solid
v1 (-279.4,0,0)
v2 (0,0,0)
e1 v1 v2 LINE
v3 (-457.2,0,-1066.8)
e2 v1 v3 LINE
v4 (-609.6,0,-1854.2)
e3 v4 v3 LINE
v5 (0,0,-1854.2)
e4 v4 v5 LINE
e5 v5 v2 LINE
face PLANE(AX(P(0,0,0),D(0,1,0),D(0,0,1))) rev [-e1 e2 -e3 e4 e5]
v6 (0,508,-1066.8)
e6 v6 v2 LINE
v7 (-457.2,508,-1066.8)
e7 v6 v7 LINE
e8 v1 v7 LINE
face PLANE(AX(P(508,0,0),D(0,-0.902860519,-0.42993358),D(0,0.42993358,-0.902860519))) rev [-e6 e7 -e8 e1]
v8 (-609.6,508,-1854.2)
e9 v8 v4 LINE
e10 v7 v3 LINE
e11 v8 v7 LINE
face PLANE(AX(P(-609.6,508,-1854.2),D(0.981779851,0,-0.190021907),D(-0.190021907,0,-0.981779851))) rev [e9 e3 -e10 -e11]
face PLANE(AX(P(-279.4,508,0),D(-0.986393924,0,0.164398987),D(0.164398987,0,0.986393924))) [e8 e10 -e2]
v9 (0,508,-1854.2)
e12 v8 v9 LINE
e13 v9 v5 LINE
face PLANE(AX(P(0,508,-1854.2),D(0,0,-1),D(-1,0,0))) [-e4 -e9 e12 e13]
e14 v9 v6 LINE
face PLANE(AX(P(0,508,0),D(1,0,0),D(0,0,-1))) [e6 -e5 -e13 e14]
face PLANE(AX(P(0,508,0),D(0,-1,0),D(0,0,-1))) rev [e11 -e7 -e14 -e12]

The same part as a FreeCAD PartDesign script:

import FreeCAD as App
import Part
import Sketcher
Q = App.Units.Quantity

doc = App.newDocument("Part")
body = doc.addObject("PartDesign::Body", "Body")

sketch1 = body.newObject("Sketcher::SketchObject", "Sketch")
sketch1.AttachmentSupport = (doc.getObject("XZ_Plane"), [""])
sketch1.MapMode = "FlatFace"
sketch1.addGeometry(Part.LineSegment(App.Vector(0, -1067, 0), App.Vector(0, 0, 0)), False)
sketch1.addGeometry(Part.LineSegment(App.Vector(0, 0, 0), App.Vector(279, 0, 0)), False)
sketch1.addGeometry(Part.LineSegment(App.Vector(279, 0, 0), App.Vector(457, -1067, 0)), False)
sketch1.addGeometry(Part.LineSegment(App.Vector(457, -1067, 0), App.Vector(0, -1067, 0)), False)
sketch1.addConstraint(Sketcher.Constraint("Coincident", 0, 2, 1, 1))
sketch1.addConstraint(Sketcher.Constraint("Coincident", 1, 2, 2, 1))
sketch1.addConstraint(Sketcher.Constraint("Coincident", 2, 2, 3, 1))
sketch1.addConstraint(Sketcher.Constraint("Coincident", 3, 2, 0, 1))
sketch1.addConstraint(Sketcher.Constraint("Vertical", 0))
sketch1.addConstraint(Sketcher.Constraint("Horizontal", 1))
sketch1.addConstraint(Sketcher.Constraint("Horizontal", 3))
sketch1.addConstraint(Sketcher.Constraint("Coincident", 0, 2, -1, 1))
sketch1.addConstraint(Sketcher.Constraint("DistanceX", 1, 1, 1, 2, Q("11 in")))
sketch1.addConstraint(Sketcher.Constraint("DistanceX", 3, 2, 3, 1, Q("18 in")))
sketch1.addConstraint(Sketcher.Constraint("DistanceY", 0, 1, 0, 2, Q("42 in")))
pad1 = body.newObject("PartDesign::Pad", "Pad")
pad1.Profile = sketch1
pad1.Length = Q("20 in")
pad1.Reversed = True

sketch2 = body.newObject("Sketcher::SketchObject", "Sketch001")
sketch2.AttachmentSupport = (doc.getObject("YZ_Plane"), [""])
sketch2.MapMode = "FlatFace"
sketch2.addGeometry(Part.LineSegment(App.Vector(508, -1067, 0), App.Vector(0, 0, 0)), False)
sketch2.addGeometry(Part.LineSegment(App.Vector(0, 0, 0), App.Vector(733, 0, 0)), False)
sketch2.addGeometry(Part.LineSegment(App.Vector(733, 0, 0), App.Vector(733, -1067, 0)), False)
sketch2.addGeometry(Part.LineSegment(App.Vector(733, -1067, 0), App.Vector(508, -1067, 0)), False)
sketch2.addConstraint(Sketcher.Constraint("Coincident", 0, 2, 1, 1))
sketch2.addConstraint(Sketcher.Constraint("Coincident", 1, 2, 2, 1))
sketch2.addConstraint(Sketcher.Constraint("Coincident", 2, 2, 3, 1))
sketch2.addConstraint(Sketcher.Constraint("Coincident", 3, 2, 0, 1))
sketch2.addConstraint(Sketcher.Constraint("Horizontal", 1))
sketch2.addConstraint(Sketcher.Constraint("Vertical", 2))
sketch2.addConstraint(Sketcher.Constraint("Horizontal", 3))
sketch2.addConstraint(Sketcher.Constraint("Coincident", 0, 2, -1, 1))
sketch2.addConstraint(Sketcher.Constraint("DistanceY", 2, 2, 2, 1, Q("42 in")))
sketch2.addConstraint(Sketcher.Constraint("DistanceX", -1, 1, 3, 2, Q("20 in")))
sketch2.addConstraint(Sketcher.Constraint("DistanceX", 1, 1, 1, 2, Q("732.672418 mm")))
pocket1 = body.newObject("PartDesign::Pocket", "Pocket")
pocket1.Profile = sketch2
pocket1.Length = Q("20 in")
pocket1.Reversed = True

sketch3 = body.newObject("Sketcher::SketchObject", "Sketch002")
sketch3.AttachmentSupport = (doc.getObject("XZ_Plane"), [""])
sketch3.MapMode = "FlatFace"
sketch3.addGeometry(Part.LineSegment(App.Vector(0, -1067, 0), App.Vector(0, -1854, 0)), False)
sketch3.addGeometry(Part.LineSegment(App.Vector(0, -1854, 0), App.Vector(610, -1854, 0)), False)
sketch3.addGeometry(Part.LineSegment(App.Vector(610, -1854, 0), App.Vector(457, -1067, 0)), False)
sketch3.addGeometry(Part.LineSegment(App.Vector(457, -1067, 0), App.Vector(0, -1067, 0)), False)
sketch3.addConstraint(Sketcher.Constraint("Coincident", 0, 2, 1, 1))
sketch3.addConstraint(Sketcher.Constraint("Coincident", 1, 2, 2, 1))
sketch3.addConstraint(Sketcher.Constraint("Coincident", 2, 2, 3, 1))
sketch3.addConstraint(Sketcher.Constraint("Coincident", 3, 2, 0, 1))
sketch3.addConstraint(Sketcher.Constraint("Vertical", 0))
sketch3.addConstraint(Sketcher.Constraint("Horizontal", 1))
sketch3.addConstraint(Sketcher.Constraint("Horizontal", 3))
sketch3.addConstraint(Sketcher.Constraint("PointOnObject", 0, 2, -2))
sketch3.addConstraint(Sketcher.Constraint("DistanceX", 1, 1, 1, 2, Q("24 in")))
sketch3.addConstraint(Sketcher.Constraint("DistanceX", 3, 2, 3, 1, Q("18 in")))
sketch3.addConstraint(Sketcher.Constraint("DistanceY", 0, 2, 0, 1, Q("31 in")))
sketch3.addConstraint(Sketcher.Constraint("DistanceY", 0, 2, -1, 1, Q("73 in")))
pad2 = body.newObject("PartDesign::Pad", "Pad001")
pad2.Profile = sketch3
pad2.Length = Q("20 in")
pad2.Reversed = True
doc.recompute()

mirrored = body.newObject("PartDesign::Mirrored", "Mirrored")
mirrored.Originals = [pad1, pocket1, pad2]
mirrored.MirrorPlane = (doc.getObject("YZ_Plane"), [""])
body.Tip = mirrored

sketch4 = body.newObject("Sketcher::SketchObject", "Sketch003")
sketch4.AttachmentSupport = (doc.getObject("XZ_Plane"), [""])
sketch4.MapMode = "FlatFace"
sketch4.addGeometry(Part.LineSegment(App.Vector(0, -2215, 0), App.Vector(0, 0, 0)), False)
sketch4.addGeometry(Part.LineSegment(App.Vector(0, 0, 0), App.Vector(1309, 0, 0)), False)
sketch4.addGeometry(Part.LineSegment(App.Vector(1309, 0, 0), App.Vector(1309, -2215, 0)), False)
sketch4.addGeometry(Part.LineSegment(App.Vector(1309, -2215, 0), App.Vector(0, -2215, 0)), False)
sketch4.addConstraint(Sketcher.Constraint("Coincident", 0, 2, 1, 1))
sketch4.addConstraint(Sketcher.Constraint("Coincident", 1, 2, 2, 1))
sketch4.addConstraint(Sketcher.Constraint("Coincident", 2, 2, 3, 1))
sketch4.addConstraint(Sketcher.Constraint("Coincident", 3, 2, 0, 1))
sketch4.addConstraint(Sketcher.Constraint("Vertical", 0))
sketch4.addConstraint(Sketcher.Constraint("Horizontal", 1))
sketch4.addConstraint(Sketcher.Constraint("Vertical", 2))
sketch4.addConstraint(Sketcher.Constraint("Horizontal", 3))
sketch4.addConstraint(Sketcher.Constraint("Coincident", 0, 2, -1, 1))
sketch4.addConstraint(Sketcher.Constraint("DistanceX", 1, 1, 1, 2, Q("1308.893905 mm")))
sketch4.addConstraint(Sketcher.Constraint("DistanceY", 0, 1, 0, 2, Q("2214.808655 mm")))
pocket2 = body.newObject("PartDesign::Pocket", "Pocket001")
pocket2.Profile = sketch4
pocket2.Type = "ThroughAll"

doc.recompute()
